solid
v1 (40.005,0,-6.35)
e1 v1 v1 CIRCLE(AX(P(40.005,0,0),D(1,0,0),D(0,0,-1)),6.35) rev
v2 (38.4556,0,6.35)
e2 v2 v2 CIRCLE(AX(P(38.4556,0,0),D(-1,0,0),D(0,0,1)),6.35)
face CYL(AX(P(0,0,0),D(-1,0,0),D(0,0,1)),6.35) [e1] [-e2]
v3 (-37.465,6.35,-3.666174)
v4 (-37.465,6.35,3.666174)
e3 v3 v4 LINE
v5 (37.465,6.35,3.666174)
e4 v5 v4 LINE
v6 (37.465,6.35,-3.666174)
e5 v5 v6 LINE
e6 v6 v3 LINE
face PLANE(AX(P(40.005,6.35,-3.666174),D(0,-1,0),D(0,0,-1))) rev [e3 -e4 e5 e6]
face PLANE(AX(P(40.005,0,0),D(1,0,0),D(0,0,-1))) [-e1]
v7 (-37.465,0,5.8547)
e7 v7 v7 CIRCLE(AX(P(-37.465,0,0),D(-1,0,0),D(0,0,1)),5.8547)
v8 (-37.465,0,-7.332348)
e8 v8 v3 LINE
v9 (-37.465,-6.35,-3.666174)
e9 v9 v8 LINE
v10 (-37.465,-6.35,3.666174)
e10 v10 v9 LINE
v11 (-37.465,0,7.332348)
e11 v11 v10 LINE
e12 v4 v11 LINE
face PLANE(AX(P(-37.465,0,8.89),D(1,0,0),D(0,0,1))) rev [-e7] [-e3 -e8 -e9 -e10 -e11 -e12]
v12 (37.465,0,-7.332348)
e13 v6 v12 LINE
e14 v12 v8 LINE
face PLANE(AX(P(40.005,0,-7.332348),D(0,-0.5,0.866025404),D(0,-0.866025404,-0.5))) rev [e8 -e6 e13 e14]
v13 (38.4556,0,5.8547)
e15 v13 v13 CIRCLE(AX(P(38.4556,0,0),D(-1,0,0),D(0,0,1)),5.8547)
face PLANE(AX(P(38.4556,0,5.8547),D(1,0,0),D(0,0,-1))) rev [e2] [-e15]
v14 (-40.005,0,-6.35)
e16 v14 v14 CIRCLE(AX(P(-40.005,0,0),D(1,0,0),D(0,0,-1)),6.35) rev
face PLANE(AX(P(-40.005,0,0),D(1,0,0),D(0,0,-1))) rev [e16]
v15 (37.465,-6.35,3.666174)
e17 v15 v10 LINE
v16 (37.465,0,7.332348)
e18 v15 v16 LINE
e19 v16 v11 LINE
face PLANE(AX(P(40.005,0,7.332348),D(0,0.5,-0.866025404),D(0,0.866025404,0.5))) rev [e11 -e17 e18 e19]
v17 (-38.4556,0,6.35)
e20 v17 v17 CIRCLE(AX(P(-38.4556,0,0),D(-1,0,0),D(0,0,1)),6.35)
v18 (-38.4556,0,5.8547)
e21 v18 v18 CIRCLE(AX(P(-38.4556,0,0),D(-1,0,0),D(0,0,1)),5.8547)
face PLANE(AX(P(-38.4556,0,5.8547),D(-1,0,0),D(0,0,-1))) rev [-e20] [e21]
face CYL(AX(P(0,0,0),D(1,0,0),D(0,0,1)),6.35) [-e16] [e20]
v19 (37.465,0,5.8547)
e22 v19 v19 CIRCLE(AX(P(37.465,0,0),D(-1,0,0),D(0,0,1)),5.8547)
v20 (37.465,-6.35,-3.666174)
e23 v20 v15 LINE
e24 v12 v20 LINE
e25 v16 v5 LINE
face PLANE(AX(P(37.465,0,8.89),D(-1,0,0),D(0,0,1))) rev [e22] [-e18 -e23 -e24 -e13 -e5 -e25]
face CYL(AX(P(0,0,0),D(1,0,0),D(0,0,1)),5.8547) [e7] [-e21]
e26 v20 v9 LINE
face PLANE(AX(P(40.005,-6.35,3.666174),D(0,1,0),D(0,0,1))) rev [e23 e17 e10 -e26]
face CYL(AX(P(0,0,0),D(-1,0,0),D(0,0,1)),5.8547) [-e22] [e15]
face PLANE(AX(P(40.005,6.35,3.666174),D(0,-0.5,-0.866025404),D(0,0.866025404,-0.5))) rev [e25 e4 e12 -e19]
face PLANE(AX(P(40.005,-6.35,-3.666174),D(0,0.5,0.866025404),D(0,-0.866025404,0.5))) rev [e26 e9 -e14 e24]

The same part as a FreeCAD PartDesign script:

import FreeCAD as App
import Part
import Sketcher

V = App.Vector
Q = App.Units.Quantity

doc = App.newDocument("Part")
body = doc.addObject("PartDesign::Body", "Body")

sketch1 = body.newObject("Sketcher::SketchObject", "Sketch")
sketch1.AttachmentSupport = (doc.getObject("YZ_Plane"), [""])
sketch1.MapMode = "FlatFace"
sketch1.addGeometry(Part.LineSegment(V(0, -7, 0), V(6, -4, 0)), False)
sketch1.addGeometry(Part.LineSegment(V(6, -4, 0), V(6, 4, 0)), False)
sketch1.addGeometry(Part.LineSegment(V(6, 4, 0), V(0, 7, 0)), False)
sketch1.addGeometry(Part.LineSegment(V(0, 7, 0), V(-6, 4, 0)), False)
sketch1.addGeometry(Part.LineSegment(V(-6, 4, 0), V(-6, -4, 0)), False)
sketch1.addGeometry(Part.LineSegment(V(-6, -4, 0), V(0, -7, 0)), False)
sketch1.addConstraint(Sketcher.Constraint("Coincident", 0, 2, 1, 1))
sketch1.addConstraint(Sketcher.Constraint("Coincident", 1, 2, 2, 1))
sketch1.addConstraint(Sketcher.Constraint("Coincident", 2, 2, 3, 1))
sketch1.addConstraint(Sketcher.Constraint("Coincident", 3, 2, 4, 1))
sketch1.addConstraint(Sketcher.Constraint("Coincident", 4, 2, 5, 1))
sketch1.addConstraint(Sketcher.Constraint("Coincident", 5, 2, 0, 1))
sketch1.addConstraint(Sketcher.Constraint("Vertical", 1))
sketch1.addConstraint(Sketcher.Constraint("Vertical", 4))
sketch1.addConstraint(Sketcher.Constraint("Symmetric", 0, 2, 3, 2, -1, 1))
sketch1.addConstraint(Sketcher.Constraint("Symmetric", 2, 2, 5, 2, -1, 1))
sketch1.addConstraint(Sketcher.Constraint("PointOnObject", 2, 2, -2))
sketch1.addConstraint(Sketcher.Constraint("Parallel", 2, 5))
sketch1.addConstraint(Sketcher.Constraint("Horizontal", 1, 2, 3, 2))
sketch1.addConstraint(Sketcher.Constraint("Angle", 0, Q("30 deg")))
sketch1.addConstraint(Sketcher.Constraint("DistanceX", 3, 2, 1, 2, Q("0.5 in")))
sketch1.addConstraint(Sketcher.Constraint("DistanceY", 1, 1, 1, 2, Q("7.332348 mm")))
pad1 = body.newObject("PartDesign::Pad", "Pad")
pad1.Profile = sketch1
pad1.Length = Q("3.15 in")
pad1.Midplane = True

sketch2 = body.newObject("Sketcher::SketchObject", "Sketch001")
sketch2.AttachmentSupport = (doc.getObject("XZ_Plane"), [""])
sketch2.MapMode = "FlatFace"
sketch2.addGeometry(Part.LineSegment(V(38.46, 5.85, 0), V(37.47, 5.85, 0)), False)
sketch2.addGeometry(Part.LineSegment(V(37.47, 5.85, 0), V(37.47, 8.89, 0)), False)
sketch2.addGeometry(Part.LineSegment(V(37.47, 8.89, 0), V(40.01, 8.89, 0)), False)
sketch2.addGeometry(Part.LineSegment(V(40.01, 8.89, 0), V(40.01, 6.35, 0)), False)
sketch2.addGeometry(Part.LineSegment(V(40.01, 6.35, 0), V(38.46, 6.35, 0)), False)
sketch2.addGeometry(Part.LineSegment(V(38.46, 6.35, 0), V(38.46, 5.85, 0)), False)
sketch2.addConstraint(Sketcher.Constraint("Coincident", 0, 2, 1, 1))
sketch2.addConstraint(Sketcher.Constraint("Coincident", 1, 2, 2, 1))
sketch2.addConstraint(Sketcher.Constraint("Coincident", 2, 2, 3, 1))
sketch2.addConstraint(Sketcher.Constraint("Coincident", 3, 2, 4, 1))
sketch2.addConstraint(Sketcher.Constraint("Coincident", 4, 2, 5, 1))
sketch2.addConstraint(Sketcher.Constraint("Coincident", 5, 2, 0, 1))
sketch2.addConstraint(Sketcher.Constraint("Horizontal", 0))
sketch2.addConstraint(Sketcher.Constraint("Vertical", 1))
sketch2.addConstraint(Sketcher.Constraint("Horizontal", 2))
sketch2.addConstraint(Sketcher.Constraint("Vertical", 3))
sketch2.addConstraint(Sketcher.Constraint("Horizontal", 4))
sketch2.addConstraint(Sketcher.Constraint("Vertical", 5))
sketch2.addConstraint(Sketcher.Constraint("Equal", 2, 3))
sketch2.addConstraint(Sketcher.Constraint("DistanceX", 2, 1, 2, 2, Q("0.1 in")))
sketch2.addConstraint(Sketcher.Constraint("DistanceX", 0, 2, 0, 1, Q("0.039 in")))
sketch2.addConstraint(Sketcher.Constraint("DistanceY", -1, 1, 1, 2, Q("0.35 in")))
sketch2.addConstraint(Sketcher.Constraint("DistanceY", 1, 1, 1, 2, Q("0.1195 in")))
sketch2.addConstraint(Sketcher.Constraint("DistanceX", -1, 1, 0, 2, Q("1.475 in")))
groove = body.newObject("PartDesign::Groove", "Groove")
groove.Profile = sketch2
groove.ReferenceAxis = (sketch2, ["H_Axis"])
groove.Angle = 360
doc.recompute()

mirrored = body.newObject("PartDesign::Mirrored", "Mirrored")
mirrored.Originals = [groove]
mirrored.MirrorPlane = (doc.getObject("YZ_Plane"), [""])
body.Tip = mirrored

doc.recompute()
